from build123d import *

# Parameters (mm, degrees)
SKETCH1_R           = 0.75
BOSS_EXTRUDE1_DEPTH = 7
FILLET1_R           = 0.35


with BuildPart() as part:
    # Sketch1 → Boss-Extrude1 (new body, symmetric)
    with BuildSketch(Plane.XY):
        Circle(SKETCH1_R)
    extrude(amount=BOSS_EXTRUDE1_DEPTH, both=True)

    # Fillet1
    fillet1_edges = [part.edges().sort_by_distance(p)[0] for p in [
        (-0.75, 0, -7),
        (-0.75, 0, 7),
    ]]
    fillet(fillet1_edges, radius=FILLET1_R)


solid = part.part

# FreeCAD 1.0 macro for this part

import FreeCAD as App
import Part
import Sketcher
Q = App.Units.Quantity


def edges_at(feature, points):
    """Names of the edges that pass closest to the given points."""
    edges = feature.Shape.Edges
    near = lambda p: min(range(len(edges)), key=lambda i: edges[i].distToShape(Part.Vertex(*p))[0])
    return sorted({f"Edge{near(p) + 1}" for p in points})

doc = App.newDocument("Part")
params = doc.addObject("Spreadsheet::Sheet", "Params")
for row, (alias, value) in enumerate([
    ("sketch1_diameter", "1.5 mm"),
    ("pad1_length", "14 mm"),
    ("fillet_radius", "0.35 mm"),
], start=1):
    params.set(f"A{row}", alias)
    params.set(f"B{row}", "=" + value)
    params.setAlias(f"B{row}", alias)

body = doc.addObject("PartDesign::Body", "Body")

# Sketch on XY plane
sketch1 = doc.addObject("Sketcher::SketchObject", "Sketch")
body.addObject(sketch1)
sketch1.AttachmentSupport = (doc.XY_Plane, [""])
sketch1.MapMode = "FlatFace"
sketch1.addGeometry(Part.Circle(App.Vector(0, 0, 0), App.Vector(0, 0, 1), 0.8), False)
sketch1.addConstraint(Sketcher.Constraint("Coincident", 0, 3, -1, 1))
sketch1.addConstraint(Sketcher.Constraint("Diameter", 0, Q("1.5 mm")))
sketch1.setExpression("Constraints[1]", "Params.sketch1_diameter")
pad1 = doc.addObject("PartDesign::Pad", "Pad")
body.addObject(pad1)
pad1.Profile = sketch1
pad1.setExpression("Length", "Params.pad1_length")
pad1.Midplane = True
doc.recompute()

fillet = doc.addObject("PartDesign::Fillet", "Fillet")
body.addObject(fillet)
fillet.Base = (pad1, edges_at(pad1, [(-0.75, 0, -7), (-0.75, 0, 7)]))
fillet.setExpression("Radius", "Params.fillet_radius")

doc.recompute()
